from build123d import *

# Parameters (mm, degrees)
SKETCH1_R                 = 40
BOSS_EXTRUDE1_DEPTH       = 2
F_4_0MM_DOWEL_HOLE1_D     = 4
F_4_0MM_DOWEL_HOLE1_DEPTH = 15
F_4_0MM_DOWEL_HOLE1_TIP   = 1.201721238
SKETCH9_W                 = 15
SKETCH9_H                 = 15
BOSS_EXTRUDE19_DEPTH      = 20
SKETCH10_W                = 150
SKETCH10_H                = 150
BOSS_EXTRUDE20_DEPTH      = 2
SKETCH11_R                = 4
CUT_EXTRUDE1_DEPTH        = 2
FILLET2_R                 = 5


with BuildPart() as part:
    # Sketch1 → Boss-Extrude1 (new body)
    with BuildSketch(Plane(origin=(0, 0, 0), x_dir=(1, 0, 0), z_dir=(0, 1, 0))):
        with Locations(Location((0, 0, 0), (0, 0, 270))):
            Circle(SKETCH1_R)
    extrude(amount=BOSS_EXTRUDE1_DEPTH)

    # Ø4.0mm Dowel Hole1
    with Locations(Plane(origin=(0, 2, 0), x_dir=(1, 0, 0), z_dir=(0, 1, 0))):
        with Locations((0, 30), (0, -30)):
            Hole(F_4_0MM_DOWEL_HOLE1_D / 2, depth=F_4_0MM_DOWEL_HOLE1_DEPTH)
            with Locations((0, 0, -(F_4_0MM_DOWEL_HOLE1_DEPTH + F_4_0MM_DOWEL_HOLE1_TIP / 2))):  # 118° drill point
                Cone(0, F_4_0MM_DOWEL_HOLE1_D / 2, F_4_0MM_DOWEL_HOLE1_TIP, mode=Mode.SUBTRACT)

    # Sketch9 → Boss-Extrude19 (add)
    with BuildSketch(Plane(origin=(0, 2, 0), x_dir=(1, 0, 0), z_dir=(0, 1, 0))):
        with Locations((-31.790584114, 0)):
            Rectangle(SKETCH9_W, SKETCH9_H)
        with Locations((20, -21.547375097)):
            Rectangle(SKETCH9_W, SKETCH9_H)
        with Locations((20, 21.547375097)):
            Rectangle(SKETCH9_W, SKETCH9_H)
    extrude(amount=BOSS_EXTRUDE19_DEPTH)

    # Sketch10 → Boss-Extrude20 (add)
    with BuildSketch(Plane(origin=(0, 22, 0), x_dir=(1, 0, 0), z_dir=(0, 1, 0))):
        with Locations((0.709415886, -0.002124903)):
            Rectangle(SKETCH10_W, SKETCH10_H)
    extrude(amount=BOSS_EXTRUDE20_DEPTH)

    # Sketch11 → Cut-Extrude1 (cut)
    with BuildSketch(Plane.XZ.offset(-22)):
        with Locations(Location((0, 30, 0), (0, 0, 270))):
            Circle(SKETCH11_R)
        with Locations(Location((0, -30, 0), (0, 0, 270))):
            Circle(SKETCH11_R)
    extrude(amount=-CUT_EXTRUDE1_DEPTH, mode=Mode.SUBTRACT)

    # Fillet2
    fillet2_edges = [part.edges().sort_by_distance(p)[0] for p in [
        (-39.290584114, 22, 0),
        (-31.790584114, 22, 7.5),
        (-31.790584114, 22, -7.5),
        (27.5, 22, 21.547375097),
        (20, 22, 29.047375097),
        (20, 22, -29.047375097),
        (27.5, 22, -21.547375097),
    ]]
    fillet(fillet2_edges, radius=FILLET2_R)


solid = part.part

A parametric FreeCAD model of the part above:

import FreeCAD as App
import Part
import Sketcher
Q = App.Units.Quantity


def edges_at(feature, points):
    """Names of the edges that pass closest to the given points."""
    edges = feature.Shape.Edges
    near = lambda p: min(range(len(edges)), key=lambda i: edges[i].distToShape(Part.Vertex(*p))[0])
    return sorted({f"Edge{near(p) + 1}" for p in points})

doc = App.newDocument("Part")
params = doc.addObject("Spreadsheet::Sheet", "Params")
for row, (alias, value) in enumerate([
    ("sketch1_diameter", "80 mm"),
    ("pad1_length", "2 mm"),
    ("sketch2_diameter", "4 mm"),
    ("hole_diameter", "4 mm"),
    ("hole_depth", "15 mm"),
    ("sketch3_width", "15 mm"),
    ("pad2_length", "20 mm"),
    ("sketch4_width", "150 mm"),
    ("pad3_length", "2 mm"),
    ("sketch5_diameter", "8 mm"),
    ("pocket1_length", "2 mm"),
    ("fillet_radius", "5 mm"),
], start=1):
    params.set(f"A{row}", alias)
    params.set(f"B{row}", "=" + value)
    params.setAlias(f"B{row}", alias)

body = doc.addObject("PartDesign::Body", "Body")

# Sketch on XZ plane
sketch1 = body.newObject("Sketcher::SketchObject", "Sketch")
sketch1.AttachmentSupport = (doc.getObject("XZ_Plane"), [""])
sketch1.MapMode = "FlatFace"
sketch1.addGeometry(Part.Circle(App.Vector(0, 0, 0), App.Vector(0, 0, 1), 40), False)
sketch1.addConstraint([
    Sketcher.Constraint("Coincident", 0, 3, -1, 1),
    Sketcher.Constraint("Diameter", 0, Q("80 mm")),
])
sketch1.setExpression("Constraints[1]", "Params.sketch1_diameter")
pad1 = body.newObject("PartDesign::Pad", "Pad")
pad1.Profile = sketch1
pad1.setExpression("Length", "Params.pad1_length")
pad1.Reversed = True

# Sketch on XZ plane
sketch2 = body.newObject("Sketcher::SketchObject", "Sketch001")
sketch2.AttachmentSupport = (doc.getObject("XZ_Plane"), [""])
sketch2.MapMode = "FlatFace"
sketch2.AttachmentOffset = App.Placement(App.Vector(0, 0, -2), App.Rotation())
sketch2.addGeometry([
    Part.Circle(App.Vector(0, -30, 0), App.Vector(0, 0, 1), 2),
    Part.Circle(App.Vector(0, 30, 0), App.Vector(0, 0, 1), 2),
], False)
sketch2.addConstraint([
    Sketcher.Constraint("Equal", 0, 1),
    Sketcher.Constraint("Symmetric", 0, 3, 1, 3, -1, 1),
    Sketcher.Constraint("PointOnObject", 0, 3, -2),
    Sketcher.Constraint("Diameter", 0, Q("4 mm")),
    Sketcher.Constraint("DistanceY", 0, 3, -1, 1, Q("30 mm")),
])
sketch2.setExpression("Constraints[3]", "Params.sketch2_diameter")
doc.recompute()
hole = body.newObject("PartDesign::Hole", "Hole")
hole.Profile = sketch2
hole.ThreadType = "None"
hole.setExpression("Diameter", "Params.hole_diameter")
hole.DepthType = "Dimension"
hole.setExpression("Depth", "Params.hole_depth")
hole.DrillPoint = "Angled"
hole.DrillPointAngle = 118
hole.Reversed = True

# Sketch on XZ plane
sketch3 = body.newObject("Sketcher::SketchObject", "Sketch002")
sketch3.AttachmentSupport = (doc.getObject("XZ_Plane"), [""])
sketch3.MapMode = "FlatFace"
sketch3.AttachmentOffset = App.Placement(App.Vector(0, 0, -2), App.Rotation())
sketch3.addGeometry([
    Part.LineSegment(App.Vector(-39, -8, 0), App.Vector(-39, 8, 0)),  # 0
    Part.LineSegment(App.Vector(-39, 8, 0), App.Vector(-24, 8, 0)),  # 1
    Part.LineSegment(App.Vector(-24, 8, 0), App.Vector(-24, -8, 0)),  # 2
    Part.LineSegment(App.Vector(-24, -8, 0), App.Vector(-39, -8, 0)),  # 3
    Part.LineSegment(App.Vector(12, 14, 0), App.Vector(12, 29, 0)),  # 4
    Part.LineSegment(App.Vector(12, 29, 0), App.Vector(28, 29, 0)),  # 5
    Part.LineSegment(App.Vector(28, 29, 0), App.Vector(28, 14, 0)),  # 6
    Part.LineSegment(App.Vector(28, 14, 0), App.Vector(12, 14, 0)),  # 7
    Part.LineSegment(App.Vector(12, -29, 0), App.Vector(12, -14, 0)),  # 8
    Part.LineSegment(App.Vector(12, -14, 0), App.Vector(28, -14, 0)),  # 9
    Part.LineSegment(App.Vector(28, -14, 0), App.Vector(28, -29, 0)),  # 10
    Part.LineSegment(App.Vector(28, -29, 0), App.Vector(12, -29, 0)),  # 11
], False)
sketch3.addConstraint([
    Sketcher.Constraint("Coincident", 0, 2, 1, 1),
    Sketcher.Constraint("Coincident", 1, 2, 2, 1),
    Sketcher.Constraint("Coincident", 2, 2, 3, 1),
    Sketcher.Constraint("Coincident", 3, 2, 0, 1),
    Sketcher.Constraint("Coincident", 4, 2, 5, 1),
    Sketcher.Constraint("Coincident", 5, 2, 6, 1),
    Sketcher.Constraint("Coincident", 6, 2, 7, 1),
    Sketcher.Constraint("Coincident", 7, 2, 4, 1),
    Sketcher.Constraint("Coincident", 8, 2, 9, 1),
    Sketcher.Constraint("Coincident", 9, 2, 10, 1),
    Sketcher.Constraint("Coincident", 10, 2, 11, 1),
    Sketcher.Constraint("Coincident", 11, 2, 8, 1),
    Sketcher.Constraint("Vertical", 0),
    Sketcher.Constraint("Horizontal", 1),
    Sketcher.Constraint("Vertical", 2),
    Sketcher.Constraint("Horizontal", 3),
    Sketcher.Constraint("Vertical", 4),
    Sketcher.Constraint("Horizontal", 5),
    Sketcher.Constraint("Vertical", 6),
    Sketcher.Constraint("Horizontal", 7),
    Sketcher.Constraint("Vertical", 8),
    Sketcher.Constraint("Horizontal", 9),
    Sketcher.Constraint("Vertical", 10),
    Sketcher.Constraint("Horizontal", 11),
    Sketcher.Constraint("Symmetric", 7, 2, 8, 2, -1),
    Sketcher.Constraint("Symmetric", 5, 2, 10, 2, -1),
    Sketcher.Constraint("Equal", 3, 5),
    Sketcher.Constraint("Equal", 11, 0),
    Sketcher.Constraint("Equal", 2, 4),
    Sketcher.Constraint("DistanceX", 1, 1, 1, 2, Q("15 mm")),
    Sketcher.Constraint("DistanceY", -1, 1, 0, 2, Q("7.5 mm")),
    Sketcher.Constraint("DistanceX", -1, 1, 4, 2, Q("12.5 mm")),
    Sketcher.Constraint("DistanceY", 8, 2, 7, 2, Q("28.09475 mm")),
    Sketcher.Constraint("DistanceX", 0, 2, -1, 1, Q("39.290584 mm")),
])
sketch3.setExpression("Constraints[29]", "Params.sketch3_width")
pad2 = body.newObject("PartDesign::Pad", "Pad001")
pad2.Profile = sketch3
pad2.setExpression("Length", "Params.pad2_length")
pad2.Reversed = True

# Sketch on XZ plane
sketch4 = body.newObject("Sketcher::SketchObject", "Sketch003")
sketch4.AttachmentSupport = (doc.getObject("XZ_Plane"), [""])
sketch4.MapMode = "FlatFace"
sketch4.AttachmentOffset = App.Placement(App.Vector(0, 0, -22), App.Rotation())
sketch4.addGeometry([
    Part.LineSegment(App.Vector(-74, -75, 0), App.Vector(-74, 75, 0)),
    Part.LineSegment(App.Vector(-74, 75, 0), App.Vector(76, 75, 0)),
    Part.LineSegment(App.Vector(76, 75, 0), App.Vector(76, -75, 0)),
    Part.LineSegment(App.Vector(76, -75, 0), App.Vector(-74, -75, 0)),
], False)
sketch4.addConstraint([
    Sketcher.Constraint("Coincident", 0, 2, 1, 1),
    Sketcher.Constraint("Coincident", 1, 2, 2, 1),
    Sketcher.Constraint("Coincident", 2, 2, 3, 1),
    Sketcher.Constraint("Coincident", 3, 2, 0, 1),
    Sketcher.Constraint("Vertical", 0),
    Sketcher.Constraint("Horizontal", 1),
    Sketcher.Constraint("Vertical", 2),
    Sketcher.Constraint("Horizontal", 3),
    Sketcher.Constraint("Equal", 3, 0),
    Sketcher.Constraint("DistanceX", 1, 1, 1, 2, Q("150 mm")),
    Sketcher.Constraint("DistanceX", 0, 2, -1, 1, Q("74.290584 mm")),
    Sketcher.Constraint("DistanceY", -1, 1, 0, 2, Q("75.002125 mm")),
])
sketch4.setExpression("Constraints[9]", "Params.sketch4_width")
pad3 = body.newObject("PartDesign::Pad", "Pad002")
pad3.Profile = sketch4
pad3.setExpression("Length", "Params.pad3_length")
pad3.Reversed = True

# Sketch on XZ plane
sketch5 = body.newObject("Sketcher::SketchObject", "Sketch004")
sketch5.AttachmentSupport = (doc.getObject("XZ_Plane"), [""])
sketch5.MapMode = "FlatFace"
sketch5.AttachmentOffset = App.Placement(App.Vector(0, 0, -22), App.Rotation())
sketch5.addGeometry([
    Part.Circle(App.Vector(0, 30, 0), App.Vector(0, 0, 1), 4),
    Part.Circle(App.Vector(0, -30, 0), App.Vector(0, 0, 1), 4),
], False)
sketch5.addConstraint([
    Sketcher.Constraint("Equal", 0, 1),
    Sketcher.Constraint("Symmetric", 0, 3, 1, 3, -1, 1),
    Sketcher.Constraint("PointOnObject", 0, 3, -2),
    Sketcher.Constraint("Diameter", 0, Q("8 mm")),
    Sketcher.Constraint("DistanceY", -1, 1, 0, 3, Q("30 mm")),
])
sketch5.setExpression("Constraints[3]", "Params.sketch5_diameter")
pocket1 = body.newObject("PartDesign::Pocket", "Pocket")
pocket1.Profile = sketch5
pocket1.setExpression("Length", "Params.pocket1_length")
doc.recompute()

fillet = body.newObject("PartDesign::Fillet", "Fillet")
fillet.Base = (pocket1, edges_at(pocket1, [
    (-39.291, 22, 0),
    (-31.791, 22, 7.5),
    (-31.791, 22, -7.5),
    (27.5, 22, 21.547),
    (20, 22, 29.047),
    (20, 22, -29.047),
    (27.5, 22, -21.547),
]))
fillet.setExpression("Radius", "Params.fillet_radius")

doc.recompute()
